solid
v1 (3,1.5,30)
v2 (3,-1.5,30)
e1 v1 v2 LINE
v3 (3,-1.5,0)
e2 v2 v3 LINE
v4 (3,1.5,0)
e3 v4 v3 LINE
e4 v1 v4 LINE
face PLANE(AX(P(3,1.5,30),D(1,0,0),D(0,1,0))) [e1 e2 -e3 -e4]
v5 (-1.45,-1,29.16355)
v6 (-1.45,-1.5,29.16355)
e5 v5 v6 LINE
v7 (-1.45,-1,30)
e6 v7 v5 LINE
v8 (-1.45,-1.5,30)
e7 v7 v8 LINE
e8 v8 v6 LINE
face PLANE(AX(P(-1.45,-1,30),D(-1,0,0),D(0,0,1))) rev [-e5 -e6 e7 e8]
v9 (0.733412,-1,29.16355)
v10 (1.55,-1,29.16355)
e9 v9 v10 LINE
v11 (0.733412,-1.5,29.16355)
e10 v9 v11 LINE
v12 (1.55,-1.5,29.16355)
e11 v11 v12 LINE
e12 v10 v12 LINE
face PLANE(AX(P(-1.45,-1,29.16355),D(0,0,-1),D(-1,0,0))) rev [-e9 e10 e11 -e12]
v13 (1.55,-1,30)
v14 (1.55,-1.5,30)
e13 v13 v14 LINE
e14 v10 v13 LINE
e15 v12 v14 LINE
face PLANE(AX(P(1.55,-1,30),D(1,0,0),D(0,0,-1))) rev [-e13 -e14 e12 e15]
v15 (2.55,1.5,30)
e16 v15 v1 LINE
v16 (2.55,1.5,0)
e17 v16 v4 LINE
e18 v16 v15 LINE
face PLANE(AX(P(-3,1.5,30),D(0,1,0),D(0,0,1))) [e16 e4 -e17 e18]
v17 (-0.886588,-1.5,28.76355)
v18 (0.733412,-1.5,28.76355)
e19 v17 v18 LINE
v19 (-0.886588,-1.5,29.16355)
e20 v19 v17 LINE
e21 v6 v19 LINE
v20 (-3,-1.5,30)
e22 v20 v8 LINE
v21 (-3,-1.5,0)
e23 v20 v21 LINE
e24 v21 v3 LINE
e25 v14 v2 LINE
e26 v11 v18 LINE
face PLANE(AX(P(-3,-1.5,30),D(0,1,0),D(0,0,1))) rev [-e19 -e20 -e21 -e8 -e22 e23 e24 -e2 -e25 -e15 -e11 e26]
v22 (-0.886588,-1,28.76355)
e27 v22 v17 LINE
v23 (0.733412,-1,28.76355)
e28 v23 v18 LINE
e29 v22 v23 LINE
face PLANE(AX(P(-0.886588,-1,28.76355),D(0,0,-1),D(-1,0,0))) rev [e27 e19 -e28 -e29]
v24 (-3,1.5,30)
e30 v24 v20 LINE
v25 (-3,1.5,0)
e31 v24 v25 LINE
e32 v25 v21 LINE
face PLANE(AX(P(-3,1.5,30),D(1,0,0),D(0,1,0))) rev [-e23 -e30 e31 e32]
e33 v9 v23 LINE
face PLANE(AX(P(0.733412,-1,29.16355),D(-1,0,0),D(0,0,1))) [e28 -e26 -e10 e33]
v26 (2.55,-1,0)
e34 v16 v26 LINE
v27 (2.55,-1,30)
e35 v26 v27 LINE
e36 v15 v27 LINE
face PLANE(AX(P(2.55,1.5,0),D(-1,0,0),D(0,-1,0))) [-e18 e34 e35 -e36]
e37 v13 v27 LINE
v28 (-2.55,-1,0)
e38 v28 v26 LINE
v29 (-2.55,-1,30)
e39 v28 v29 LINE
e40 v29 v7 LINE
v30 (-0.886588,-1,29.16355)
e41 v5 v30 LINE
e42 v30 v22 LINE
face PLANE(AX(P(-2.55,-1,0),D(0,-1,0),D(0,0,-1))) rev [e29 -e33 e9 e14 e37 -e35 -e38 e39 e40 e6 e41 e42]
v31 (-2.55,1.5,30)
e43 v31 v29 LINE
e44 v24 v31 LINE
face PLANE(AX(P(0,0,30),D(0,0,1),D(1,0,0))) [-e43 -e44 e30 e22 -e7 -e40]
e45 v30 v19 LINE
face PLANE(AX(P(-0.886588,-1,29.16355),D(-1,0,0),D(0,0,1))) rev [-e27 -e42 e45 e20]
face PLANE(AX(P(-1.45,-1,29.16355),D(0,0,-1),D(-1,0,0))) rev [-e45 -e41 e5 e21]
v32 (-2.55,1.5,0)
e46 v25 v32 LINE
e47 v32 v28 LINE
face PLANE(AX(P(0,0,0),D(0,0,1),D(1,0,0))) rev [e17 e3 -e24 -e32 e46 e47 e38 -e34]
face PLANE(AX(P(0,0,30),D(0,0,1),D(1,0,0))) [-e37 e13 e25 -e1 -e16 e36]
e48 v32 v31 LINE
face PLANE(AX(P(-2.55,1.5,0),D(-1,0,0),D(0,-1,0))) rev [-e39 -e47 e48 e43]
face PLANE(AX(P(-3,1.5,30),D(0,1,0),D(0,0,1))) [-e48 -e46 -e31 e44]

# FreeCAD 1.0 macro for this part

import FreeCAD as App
import Part
import Sketcher

doc = App.newDocument("Part")
body = doc.addObject("PartDesign::Body", "Body")

# Sketch on XY plane
sketch1 = body.newObject("Sketcher::SketchObject", "Sketch")
sketch1.AttachmentSupport = (doc.getObject("XY_Plane"), [""])
sketch1.MapMode = "FlatFace"
sketch1.addGeometry([
    Part.LineSegment(App.Vector(-3, 1.5, 0), App.Vector(-3, -1.5, 0)),
    Part.LineSegment(App.Vector(-3, -1.5, 0), App.Vector(3, -1.5, 0)),
    Part.LineSegment(App.Vector(3, -1.5, 0), App.Vector(3, 1.5, 0)),
    Part.LineSegment(App.Vector(3, 1.5, 0), App.Vector(-3, 1.5, 0)),
], False)
sketch1.addConstraint([
    Sketcher.Constraint("Coincident", 0, 2, 1, 1),
    Sketcher.Constraint("Coincident", 1, 2, 2, 1),
    Sketcher.Constraint("Coincident", 2, 2, 3, 1),
    Sketcher.Constraint("Coincident", 3, 2, 0, 1),
    Sketcher.Constraint("Vertical", 0),
    Sketcher.Constraint("Horizontal", 1),
    Sketcher.Constraint("Vertical", 2),
    Sketcher.Constraint("Horizontal", 3),
    Sketcher.Constraint("Symmetric", 0, 2, 2, 2, -1, 1),
    Sketcher.Constraint("DistanceX", 1, 1, 1, 2, 6.0),
    Sketcher.Constraint("DistanceY", 0, 2, 0, 1, 3.0),
])
pad1 = body.newObject("PartDesign::Pad", "Pad")
pad1.Profile = sketch1
pad1.Length = 30

# Sketch on XY plane
sketch2 = body.newObject("Sketcher::SketchObject", "Sketch001")
sketch2.AttachmentSupport = (doc.getObject("XY_Plane"), [""])
sketch2.MapMode = "FlatFace"
sketch2.AttachmentOffset = App.Placement(App.Vector(0, 0, 30), App.Rotation())
sketch2.addGeometry([
    Part.LineSegment(App.Vector(-2.5, 1.5, 0), App.Vector(-2.5, -1, 0)),
    Part.LineSegment(App.Vector(-2.5, -1, 0), App.Vector(2.5, -1, 0)),
    Part.LineSegment(App.Vector(2.5, -1, 0), App.Vector(2.5, 1.5, 0)),
    Part.LineSegment(App.Vector(2.5, 1.5, 0), App.Vector(-2.5, 1.5, 0)),
], False)
sketch2.addConstraint([
    Sketcher.Constraint("Coincident", 0, 2, 1, 1),
    Sketcher.Constraint("Coincident", 1, 2, 2, 1),
    Sketcher.Constraint("Coincident", 2, 2, 3, 1),
    Sketcher.Constraint("Coincident", 3, 2, 0, 1),
    Sketcher.Constraint("Vertical", 0),
    Sketcher.Constraint("Horizontal", 1),
    Sketcher.Constraint("Vertical", 2),
    Sketcher.Constraint("Horizontal", 3),
    Sketcher.Constraint("DistanceX", 1, 1, 1, 2, 5.1),
    Sketcher.Constraint("DistanceY", 0, 2, 0, 1, 2.5),
    Sketcher.Constraint("DistanceY", 0, 2, -1, 1, 1.0),
    Sketcher.Constraint("DistanceX", 0, 2, -1, 1, 2.55),
])
pocket1 = body.newObject("PartDesign::Pocket", "Pocket")
pocket1.Profile = sketch2
pocket1.Length = 30

# Sketch on XZ plane
sketch3 = body.newObject("Sketcher::SketchObject", "Sketch002")
sketch3.AttachmentSupport = (doc.getObject("XZ_Plane"), [""])
sketch3.MapMode = "FlatFace"
sketch3.AttachmentOffset = App.Placement(App.Vector(0, 0, 1.5), App.Rotation())
sketch3.addGeometry([
    Part.LineSegment(App.Vector(1.6, 29.2, 0), App.Vector(1.6, 30, 0)),
    Part.LineSegment(App.Vector(1.6, 30, 0), App.Vector(-1.4, 30, 0)),
    Part.LineSegment(App.Vector(-1.4, 30, 0), App.Vector(-1.4, 29.2, 0)),
    Part.LineSegment(App.Vector(-1.4, 29.2, 0), App.Vector(1.6, 29.2, 0)),
], False)
sketch3.addConstraint([
    Sketcher.Constraint("Coincident", 0, 2, 1, 1),
    Sketcher.Constraint("Coincident", 1, 2, 2, 1),
    Sketcher.Constraint("Coincident", 2, 2, 3, 1),
    Sketcher.Constraint("Coincident", 3, 2, 0, 1),
    Sketcher.Constraint("Vertical", 0),
    Sketcher.Constraint("Horizontal", 1),
    Sketcher.Constraint("Vertical", 2),
    Sketcher.Constraint("Horizontal", 3),
    Sketcher.Constraint("DistanceX", 1, 2, 1, 1, 3.0),
    Sketcher.Constraint("DistanceY", -1, 1, 0, 2, 30.0),
    Sketcher.Constraint("DistanceX", -1, 1, 0, 2, 1.55),
    Sketcher.Constraint("DistanceY", 0, 1, 0, 2, 0.83645),
])
pocket2 = body.newObject("PartDesign::Pocket", "Pocket001")
pocket2.Profile = sketch3
pocket2.Length = 0.5

# Sketch on XZ plane
sketch4 = body.newObject("Sketcher::SketchObject", "Sketch003")
sketch4.AttachmentSupport = (doc.getObject("XZ_Plane"), [""])
sketch4.MapMode = "FlatFace"
sketch4.AttachmentOffset = App.Placement(App.Vector(0, 0, 1.5), App.Rotation())
sketch4.addGeometry([
    Part.LineSegment(App.Vector(0.73, 28.76, 0), App.Vector(0.73, 29.16, 0)),
    Part.LineSegment(App.Vector(0.73, 29.16, 0), App.Vector(-0.89, 29.16, 0)),
    Part.LineSegment(App.Vector(-0.89, 29.16, 0), App.Vector(-0.89, 28.76, 0)),
    Part.LineSegment(App.Vector(-0.89, 28.76, 0), App.Vector(0.73, 28.76, 0)),
], False)
sketch4.addConstraint([
    Sketcher.Constraint("Coincident", 0, 2, 1, 1),
    Sketcher.Constraint("Coincident", 1, 2, 2, 1),
    Sketcher.Constraint("Coincident", 2, 2, 3, 1),
    Sketcher.Constraint("Coincident", 3, 2, 0, 1),
    Sketcher.Constraint("Vertical", 0),
    Sketcher.Constraint("Horizontal", 1),
    Sketcher.Constraint("Vertical", 2),
    Sketcher.Constraint("Horizontal", 3),
    Sketcher.Constraint("DistanceY", 0, 1, 0, 2, 0.4),
    Sketcher.Constraint("DistanceX", 1, 2, 1, 1, 1.62),
    Sketcher.Constraint("DistanceX", -1, 1, 0, 2, 0.733412),
    Sketcher.Constraint("DistanceY", -1, 1, 0, 2, 29.16355),
])
pocket3 = body.newObject("PartDesign::Pocket", "Pocket002")
pocket3.Profile = sketch4
pocket3.Length = 0.5

doc.recompute()
